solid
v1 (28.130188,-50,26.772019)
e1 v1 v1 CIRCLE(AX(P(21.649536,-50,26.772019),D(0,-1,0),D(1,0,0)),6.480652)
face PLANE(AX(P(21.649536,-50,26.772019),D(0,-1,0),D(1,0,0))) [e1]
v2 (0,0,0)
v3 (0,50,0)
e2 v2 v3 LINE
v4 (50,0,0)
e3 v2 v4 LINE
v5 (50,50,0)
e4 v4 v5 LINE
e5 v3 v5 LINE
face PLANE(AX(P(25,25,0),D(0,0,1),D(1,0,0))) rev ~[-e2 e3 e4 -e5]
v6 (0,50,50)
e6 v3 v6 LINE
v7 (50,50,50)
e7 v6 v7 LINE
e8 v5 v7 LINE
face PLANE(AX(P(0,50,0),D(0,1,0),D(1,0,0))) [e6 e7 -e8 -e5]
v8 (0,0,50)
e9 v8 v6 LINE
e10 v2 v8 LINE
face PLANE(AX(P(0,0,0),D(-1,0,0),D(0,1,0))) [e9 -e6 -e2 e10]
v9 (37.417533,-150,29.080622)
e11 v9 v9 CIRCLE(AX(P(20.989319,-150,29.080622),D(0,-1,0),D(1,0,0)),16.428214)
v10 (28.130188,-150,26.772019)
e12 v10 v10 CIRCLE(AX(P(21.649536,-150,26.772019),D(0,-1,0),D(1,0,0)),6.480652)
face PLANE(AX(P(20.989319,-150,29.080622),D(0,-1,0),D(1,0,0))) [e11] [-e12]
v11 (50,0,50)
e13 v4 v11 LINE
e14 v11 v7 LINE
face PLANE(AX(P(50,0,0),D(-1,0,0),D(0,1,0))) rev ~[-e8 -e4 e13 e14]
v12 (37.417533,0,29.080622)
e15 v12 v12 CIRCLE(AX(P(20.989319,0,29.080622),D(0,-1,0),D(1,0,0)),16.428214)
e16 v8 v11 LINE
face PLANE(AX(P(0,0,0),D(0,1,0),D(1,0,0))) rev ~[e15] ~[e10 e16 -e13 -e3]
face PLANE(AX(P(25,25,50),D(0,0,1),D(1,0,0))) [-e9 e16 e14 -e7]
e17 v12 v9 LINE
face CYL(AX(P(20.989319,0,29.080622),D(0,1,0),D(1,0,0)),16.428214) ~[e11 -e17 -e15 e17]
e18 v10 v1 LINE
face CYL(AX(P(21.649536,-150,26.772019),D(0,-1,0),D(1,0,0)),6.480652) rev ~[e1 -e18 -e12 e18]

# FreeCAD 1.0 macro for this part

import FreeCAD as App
import Part
import Sketcher

V = App.Vector
Q = App.Units.Quantity

doc = App.newDocument("Part")
params = doc.addObject("Spreadsheet::Sheet", "Params")
for row, (alias, value) in enumerate([
    ("sketch1_width", "50 mm"),
    ("pad1_length", "50 mm"),
    ("pad2_length", "150 mm"),
    ("pocket1_length", "100 mm"),
], start=1):
    params.set(f"A{row}", alias)
    params.set(f"B{row}", "=" + value)
    params.setAlias(f"B{row}", alias)

body = doc.addObject("PartDesign::Body", "Body")

# Sketch on XY plane
sketch1 = doc.addObject("Sketcher::SketchObject", "Sketch")
body.addObject(sketch1)
sketch1.AttachmentSupport = (doc.XY_Plane, [""])
sketch1.MapMode = "FlatFace"
sketch1.addGeometry(Part.LineSegment(V(0, 50, 0), V(0, 0, 0)), False)
sketch1.addGeometry(Part.LineSegment(V(0, 0, 0), V(50, 0, 0)), False)
sketch1.addGeometry(Part.LineSegment(V(50, 0, 0), V(50, 50, 0)), False)
sketch1.addGeometry(Part.LineSegment(V(50, 50, 0), V(0, 50, 0)), False)
sketch1.addConstraint(Sketcher.Constraint("Coincident", 0, 2, 1, 1))
sketch1.addConstraint(Sketcher.Constraint("Coincident", 1, 2, 2, 1))
sketch1.addConstraint(Sketcher.Constraint("Coincident", 2, 2, 3, 1))
sketch1.addConstraint(Sketcher.Constraint("Coincident", 3, 2, 0, 1))
sketch1.addConstraint(Sketcher.Constraint("Vertical", 0))
sketch1.addConstraint(Sketcher.Constraint("Horizontal", 1))
sketch1.addConstraint(Sketcher.Constraint("Vertical", 2))
sketch1.addConstraint(Sketcher.Constraint("Horizontal", 3))
sketch1.addConstraint(Sketcher.Constraint("Coincident", 0, 2, -1, 1))
sketch1.addConstraint(Sketcher.Constraint("Equal", 3, 0))
sketch1.addConstraint(Sketcher.Constraint("DistanceX", 1, 1, 1, 2, Q("50 mm")))
sketch1.setExpression("Constraints[10]", "Params.sketch1_width")
pad1 = doc.addObject("PartDesign::Pad", "Pad")
body.addObject(pad1)
pad1.Profile = sketch1
pad1.setExpression("Length", "Params.pad1_length")

# Sketch on XZ plane
sketch2 = doc.addObject("Sketcher::SketchObject", "Sketch001")
body.addObject(sketch2)
sketch2.AttachmentSupport = (doc.XZ_Plane, [""])
sketch2.MapMode = "FlatFace"
sketch2.addGeometry(Part.Circle(V(20.989319, 29.080622, 0), V(0, 0, 1), 16.428214), False)
sketch2.addConstraint(Sketcher.Constraint("Diameter", 0, Q("32.856428 mm")))
sketch2.addConstraint(Sketcher.Constraint("DistanceX", -1, 1, 0, 3, Q("20.989319 mm")))
sketch2.addConstraint(Sketcher.Constraint("DistanceY", -1, 1, 0, 3, Q("29.080622 mm")))
pad2 = doc.addObject("PartDesign::Pad", "Pad001")
body.addObject(pad2)
pad2.Profile = sketch2
pad2.setExpression("Length", "Params.pad2_length")

# Sketch on XZ plane
sketch3 = doc.addObject("Sketcher::SketchObject", "Sketch002")
body.addObject(sketch3)
sketch3.AttachmentSupport = (doc.XZ_Plane, [""])
sketch3.MapMode = "FlatFace"
sketch3.AttachmentOffset = App.Placement(V(0, 0, 150), App.Rotation())
sketch3.addGeometry(Part.Circle(V(21.649536, 26.772019, 0), V(0, 0, 1), 6.480652), False)
sketch3.addConstraint(Sketcher.Constraint("Diameter", 0, Q("12.961304 mm")))
sketch3.addConstraint(Sketcher.Constraint("DistanceY", -1, 1, 0, 3, Q("26.772019 mm")))
sketch3.addConstraint(Sketcher.Constraint("DistanceX", -1, 1, 0, 3, Q("21.649536 mm")))
pocket1 = doc.addObject("PartDesign::Pocket", "Pocket")
body.addObject(pocket1)
pocket1.Profile = sketch3
pocket1.setExpression("Length", "Params.pocket1_length")

doc.recompute()
